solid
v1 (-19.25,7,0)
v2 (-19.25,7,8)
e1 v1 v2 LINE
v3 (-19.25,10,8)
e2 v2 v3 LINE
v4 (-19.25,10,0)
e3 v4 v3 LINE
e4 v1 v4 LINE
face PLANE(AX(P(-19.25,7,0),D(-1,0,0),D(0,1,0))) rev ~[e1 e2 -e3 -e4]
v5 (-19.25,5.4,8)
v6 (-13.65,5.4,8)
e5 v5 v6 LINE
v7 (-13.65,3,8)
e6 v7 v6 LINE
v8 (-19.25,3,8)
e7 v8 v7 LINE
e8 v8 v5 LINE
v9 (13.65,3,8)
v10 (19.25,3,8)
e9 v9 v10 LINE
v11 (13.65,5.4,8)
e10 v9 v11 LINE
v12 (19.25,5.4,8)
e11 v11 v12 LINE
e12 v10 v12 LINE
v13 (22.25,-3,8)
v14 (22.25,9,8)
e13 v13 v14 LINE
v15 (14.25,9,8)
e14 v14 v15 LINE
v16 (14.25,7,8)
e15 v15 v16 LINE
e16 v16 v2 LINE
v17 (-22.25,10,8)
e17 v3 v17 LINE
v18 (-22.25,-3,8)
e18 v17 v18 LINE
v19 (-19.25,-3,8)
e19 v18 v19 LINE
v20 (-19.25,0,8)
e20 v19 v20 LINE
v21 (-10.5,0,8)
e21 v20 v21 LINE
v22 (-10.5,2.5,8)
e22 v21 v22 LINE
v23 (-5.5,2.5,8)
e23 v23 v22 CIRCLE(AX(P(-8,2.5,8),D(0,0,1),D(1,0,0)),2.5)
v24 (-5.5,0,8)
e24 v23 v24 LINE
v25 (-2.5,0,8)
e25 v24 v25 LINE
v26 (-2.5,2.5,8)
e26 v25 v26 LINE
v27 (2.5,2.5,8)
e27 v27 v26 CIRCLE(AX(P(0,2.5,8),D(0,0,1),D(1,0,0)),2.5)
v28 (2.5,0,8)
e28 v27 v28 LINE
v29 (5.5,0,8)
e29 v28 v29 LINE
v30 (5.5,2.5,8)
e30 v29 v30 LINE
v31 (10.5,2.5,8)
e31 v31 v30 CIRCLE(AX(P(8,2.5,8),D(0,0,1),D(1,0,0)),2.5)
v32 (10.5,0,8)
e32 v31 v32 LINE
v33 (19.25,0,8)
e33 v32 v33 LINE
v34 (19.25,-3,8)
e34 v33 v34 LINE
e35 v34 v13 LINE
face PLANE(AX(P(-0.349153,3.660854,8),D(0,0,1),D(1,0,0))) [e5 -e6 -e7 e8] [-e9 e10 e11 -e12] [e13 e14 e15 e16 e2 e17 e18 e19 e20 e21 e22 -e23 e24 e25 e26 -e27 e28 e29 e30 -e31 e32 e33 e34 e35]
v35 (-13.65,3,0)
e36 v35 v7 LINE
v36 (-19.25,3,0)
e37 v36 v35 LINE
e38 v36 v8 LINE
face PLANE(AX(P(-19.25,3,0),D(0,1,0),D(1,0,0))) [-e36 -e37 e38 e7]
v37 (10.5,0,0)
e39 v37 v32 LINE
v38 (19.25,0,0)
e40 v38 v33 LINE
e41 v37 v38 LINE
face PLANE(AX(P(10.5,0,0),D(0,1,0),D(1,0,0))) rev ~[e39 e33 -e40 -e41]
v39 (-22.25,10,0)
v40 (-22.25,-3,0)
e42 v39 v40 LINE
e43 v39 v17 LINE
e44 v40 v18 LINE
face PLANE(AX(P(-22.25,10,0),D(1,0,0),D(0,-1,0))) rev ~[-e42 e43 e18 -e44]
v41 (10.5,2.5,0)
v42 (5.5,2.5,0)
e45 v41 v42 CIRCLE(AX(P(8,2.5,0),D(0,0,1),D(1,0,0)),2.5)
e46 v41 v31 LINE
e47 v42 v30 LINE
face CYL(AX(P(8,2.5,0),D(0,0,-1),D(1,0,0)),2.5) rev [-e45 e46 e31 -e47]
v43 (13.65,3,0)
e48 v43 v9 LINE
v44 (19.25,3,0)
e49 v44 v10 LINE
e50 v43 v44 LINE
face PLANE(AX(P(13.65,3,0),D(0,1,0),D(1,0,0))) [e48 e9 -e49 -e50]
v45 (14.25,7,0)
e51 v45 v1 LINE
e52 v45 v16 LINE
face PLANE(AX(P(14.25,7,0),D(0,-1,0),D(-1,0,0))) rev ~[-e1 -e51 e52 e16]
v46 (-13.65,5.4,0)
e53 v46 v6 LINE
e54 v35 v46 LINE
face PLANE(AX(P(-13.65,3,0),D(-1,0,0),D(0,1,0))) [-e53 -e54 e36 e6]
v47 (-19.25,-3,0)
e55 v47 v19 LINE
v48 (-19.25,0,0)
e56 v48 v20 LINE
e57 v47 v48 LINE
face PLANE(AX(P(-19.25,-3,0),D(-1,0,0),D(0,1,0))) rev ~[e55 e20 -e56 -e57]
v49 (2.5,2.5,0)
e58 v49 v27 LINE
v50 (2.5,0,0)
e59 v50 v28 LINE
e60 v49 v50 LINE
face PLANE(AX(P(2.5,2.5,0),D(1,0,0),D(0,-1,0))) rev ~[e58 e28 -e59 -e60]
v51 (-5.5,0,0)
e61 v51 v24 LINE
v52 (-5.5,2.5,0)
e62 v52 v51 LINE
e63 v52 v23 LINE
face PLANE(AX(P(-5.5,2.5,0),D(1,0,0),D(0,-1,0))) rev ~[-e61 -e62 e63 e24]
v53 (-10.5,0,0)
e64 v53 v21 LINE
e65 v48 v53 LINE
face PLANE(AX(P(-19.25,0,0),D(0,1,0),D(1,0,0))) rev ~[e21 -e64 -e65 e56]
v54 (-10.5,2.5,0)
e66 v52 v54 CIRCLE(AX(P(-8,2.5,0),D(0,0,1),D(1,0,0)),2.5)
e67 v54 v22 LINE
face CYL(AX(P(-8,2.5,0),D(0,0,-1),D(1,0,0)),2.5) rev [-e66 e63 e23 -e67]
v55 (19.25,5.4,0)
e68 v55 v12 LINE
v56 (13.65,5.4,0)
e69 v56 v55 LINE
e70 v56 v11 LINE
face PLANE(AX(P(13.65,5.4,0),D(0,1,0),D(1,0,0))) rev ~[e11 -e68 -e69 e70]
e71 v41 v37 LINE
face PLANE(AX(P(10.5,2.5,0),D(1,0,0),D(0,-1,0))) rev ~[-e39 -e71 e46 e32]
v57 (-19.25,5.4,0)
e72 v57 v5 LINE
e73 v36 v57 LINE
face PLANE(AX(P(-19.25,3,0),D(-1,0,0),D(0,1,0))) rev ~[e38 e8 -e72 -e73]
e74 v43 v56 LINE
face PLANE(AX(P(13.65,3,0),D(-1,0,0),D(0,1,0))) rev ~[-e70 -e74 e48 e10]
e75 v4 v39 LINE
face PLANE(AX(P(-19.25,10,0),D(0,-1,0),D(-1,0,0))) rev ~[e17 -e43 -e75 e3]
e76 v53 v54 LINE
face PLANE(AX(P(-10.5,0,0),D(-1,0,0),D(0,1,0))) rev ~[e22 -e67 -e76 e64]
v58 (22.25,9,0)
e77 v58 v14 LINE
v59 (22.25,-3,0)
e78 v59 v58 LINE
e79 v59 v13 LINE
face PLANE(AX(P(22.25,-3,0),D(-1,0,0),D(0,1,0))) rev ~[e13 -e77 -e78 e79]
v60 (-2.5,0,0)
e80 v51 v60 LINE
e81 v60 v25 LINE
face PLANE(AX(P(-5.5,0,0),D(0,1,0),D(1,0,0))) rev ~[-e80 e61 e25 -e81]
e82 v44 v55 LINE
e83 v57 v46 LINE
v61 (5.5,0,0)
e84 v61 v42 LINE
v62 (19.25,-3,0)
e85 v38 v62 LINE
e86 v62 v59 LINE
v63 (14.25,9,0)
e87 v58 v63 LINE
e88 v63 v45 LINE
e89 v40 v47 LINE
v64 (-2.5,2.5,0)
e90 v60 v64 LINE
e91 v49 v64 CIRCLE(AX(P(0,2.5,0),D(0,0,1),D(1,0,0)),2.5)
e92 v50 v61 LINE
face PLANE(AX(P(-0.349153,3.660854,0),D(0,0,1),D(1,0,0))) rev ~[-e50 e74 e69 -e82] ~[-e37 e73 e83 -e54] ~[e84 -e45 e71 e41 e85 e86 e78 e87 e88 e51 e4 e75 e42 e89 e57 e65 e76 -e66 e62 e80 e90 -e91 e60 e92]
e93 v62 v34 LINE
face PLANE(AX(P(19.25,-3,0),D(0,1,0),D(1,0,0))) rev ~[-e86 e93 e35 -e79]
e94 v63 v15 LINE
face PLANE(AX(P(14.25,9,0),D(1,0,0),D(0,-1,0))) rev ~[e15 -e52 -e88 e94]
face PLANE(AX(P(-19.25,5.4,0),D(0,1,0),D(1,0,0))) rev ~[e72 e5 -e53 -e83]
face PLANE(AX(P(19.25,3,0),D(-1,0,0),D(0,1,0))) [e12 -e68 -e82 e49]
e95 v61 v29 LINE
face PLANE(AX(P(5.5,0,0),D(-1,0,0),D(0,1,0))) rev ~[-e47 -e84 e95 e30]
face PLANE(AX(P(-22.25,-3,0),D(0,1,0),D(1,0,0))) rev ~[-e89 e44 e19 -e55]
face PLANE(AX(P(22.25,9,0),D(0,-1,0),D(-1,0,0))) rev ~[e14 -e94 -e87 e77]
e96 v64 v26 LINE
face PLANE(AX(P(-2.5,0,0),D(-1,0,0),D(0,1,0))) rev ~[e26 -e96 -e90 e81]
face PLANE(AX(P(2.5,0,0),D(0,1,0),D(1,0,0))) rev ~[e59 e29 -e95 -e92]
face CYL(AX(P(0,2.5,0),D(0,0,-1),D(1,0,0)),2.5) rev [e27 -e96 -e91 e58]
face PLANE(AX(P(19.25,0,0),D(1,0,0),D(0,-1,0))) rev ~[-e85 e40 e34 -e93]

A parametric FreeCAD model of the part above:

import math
import FreeCAD as App
import Part
import Sketcher

V = App.Vector


def add_polygon(sketch, points):
    """Adds a closed chain of lines whose ends are joined by coincident constraints."""
    first, n = sketch.GeometryCount, len(points)
    for a, b in zip(points, points[1:] + points[:1]):
        sketch.addGeometry(Part.LineSegment(App.Vector(*a, 0), App.Vector(*b, 0)), False)
    for i in range(n):
        sketch.addConstraint(Sketcher.Constraint("Coincident", first + i, 2, first + (i + 1) % n, 1))

doc = App.newDocument("Part")
body = doc.addObject("PartDesign::Body", "Body")

# Sketch on XY plane
sketch1 = body.newObject("Sketcher::SketchObject", "Sketch")
sketch1.AttachmentSupport = (doc.getObject("XY_Plane"), [""])
sketch1.MapMode = "FlatFace"
sketch1.addGeometry(Part.LineSegment(V(-22.2, -3, 0), V(-19.2, -3, 0)), False)  # 0
sketch1.addGeometry(Part.LineSegment(V(-19.2, -3, 0), V(-19.2, 0, 0)), False)  # 1
sketch1.addGeometry(Part.LineSegment(V(-19.2, 0, 0), V(-10.5, 0, 0)), False)  # 2
sketch1.addGeometry(Part.LineSegment(V(-10.5, 0, 0), V(-10.5, 2.5, 0)), False)  # 3
sketch1.addGeometry(Part.ArcOfCircle(Part.Circle(V(-8, 2.5, 0), V(0, 0, 1), 2.5), math.radians(0), math.radians(180)), False)  # 4
sketch1.addGeometry(Part.LineSegment(V(-5.5, 2.5, 0), V(-5.5, 0, 0)), False)  # 5
sketch1.addGeometry(Part.LineSegment(V(-5.5, 0, 0), V(-2.5, 0, 0)), False)  # 6
sketch1.addGeometry(Part.LineSegment(V(-2.5, 0, 0), V(-2.5, 2.5, 0)), False)  # 7
sketch1.addGeometry(Part.ArcOfCircle(Part.Circle(V(0, 2.5, 0), V(0, 0, 1), 2.5), math.radians(0), math.radians(180)), False)  # 8
sketch1.addGeometry(Part.LineSegment(V(2.5, 2.5, 0), V(2.5, 0, 0)), False)  # 9
sketch1.addGeometry(Part.LineSegment(V(2.5, 0, 0), V(5.5, 0, 0)), False)  # 10
sketch1.addGeometry(Part.LineSegment(V(5.5, 0, 0), V(5.5, 2.5, 0)), False)  # 11
sketch1.addGeometry(Part.ArcOfCircle(Part.Circle(V(8, 2.5, 0), V(0, 0, 1), 2.5), math.radians(0), math.radians(180)), False)  # 12
sketch1.addGeometry(Part.LineSegment(V(10.5, 2.5, 0), V(10.5, 0, 0)), False)  # 13
sketch1.addGeometry(Part.LineSegment(V(10.5, 0, 0), V(19.2, 0, 0)), False)  # 14
sketch1.addGeometry(Part.LineSegment(V(19.2, 0, 0), V(19.2, -3, 0)), False)  # 15
sketch1.addGeometry(Part.LineSegment(V(19.2, -3, 0), V(22.2, -3, 0)), False)  # 16
sketch1.addGeometry(Part.LineSegment(V(22.2, -3, 0), V(22.2, 9, 0)), False)  # 17
sketch1.addGeometry(Part.LineSegment(V(22.2, 9, 0), V(14.2, 9, 0)), False)  # 18
sketch1.addGeometry(Part.LineSegment(V(14.2, 9, 0), V(14.2, 7, 0)), False)  # 19
sketch1.addGeometry(Part.LineSegment(V(14.2, 7, 0), V(-19.2, 7, 0)), False)  # 20
sketch1.addGeometry(Part.LineSegment(V(-19.2, 7, 0), V(-19.2, 10, 0)), False)  # 21
sketch1.addGeometry(Part.LineSegment(V(-19.2, 10, 0), V(-22.2, 10, 0)), False)  # 22
sketch1.addGeometry(Part.LineSegment(V(-22.2, 10, 0), V(-22.2, -3, 0)), False)  # 23
add_polygon(sketch1, [(-13.7, 3), (-19.2, 3), (-19.2, 5.4), (-13.7, 5.4)])  # lines 24-27
add_polygon(sketch1, [(19.2, 3), (13.7, 3), (13.7, 5.4), (19.2, 5.4)])  # lines 28-31
sketch1.addConstraint(Sketcher.Constraint("Coincident", 0, 2, 1, 1))
sketch1.addConstraint(Sketcher.Constraint("Coincident", 1, 2, 2, 1))
sketch1.addConstraint(Sketcher.Constraint("Coincident", 2, 2, 3, 1))
sketch1.addConstraint(Sketcher.Constraint("Tangent", 3, 2, 4, 2))
sketch1.addConstraint(Sketcher.Constraint("Tangent", 4, 1, 5, 1))
sketch1.addConstraint(Sketcher.Constraint("Coincident", 5, 2, 6, 1))
sketch1.addConstraint(Sketcher.Constraint("Coincident", 6, 2, 7, 1))
sketch1.addConstraint(Sketcher.Constraint("Tangent", 7, 2, 8, 2))
sketch1.addConstraint(Sketcher.Constraint("Tangent", 8, 1, 9, 1))
sketch1.addConstraint(Sketcher.Constraint("Coincident", 9, 2, 10, 1))
sketch1.addConstraint(Sketcher.Constraint("Coincident", 10, 2, 11, 1))
sketch1.addConstraint(Sketcher.Constraint("Tangent", 11, 2, 12, 2))
sketch1.addConstraint(Sketcher.Constraint("Tangent", 12, 1, 13, 1))
sketch1.addConstraint(Sketcher.Constraint("Coincident", 13, 2, 14, 1))
sketch1.addConstraint(Sketcher.Constraint("Coincident", 14, 2, 15, 1))
sketch1.addConstraint(Sketcher.Constraint("Coincident", 15, 2, 16, 1))
sketch1.addConstraint(Sketcher.Constraint("Coincident", 16, 2, 17, 1))
sketch1.addConstraint(Sketcher.Constraint("Coincident", 17, 2, 18, 1))
sketch1.addConstraint(Sketcher.Constraint("Coincident", 18, 2, 19, 1))
sketch1.addConstraint(Sketcher.Constraint("Coincident", 19, 2, 20, 1))
sketch1.addConstraint(Sketcher.Constraint("Coincident", 20, 2, 21, 1))
sketch1.addConstraint(Sketcher.Constraint("Coincident", 21, 2, 22, 1))
sketch1.addConstraint(Sketcher.Constraint("Coincident", 22, 2, 23, 1))
sketch1.addConstraint(Sketcher.Constraint("Coincident", 23, 2, 0, 1))
sketch1.addConstraint(Sketcher.Constraint("Horizontal", 0))
sketch1.addConstraint(Sketcher.Constraint("Vertical", 1))
sketch1.addConstraint(Sketcher.Constraint("Horizontal", 2))
sketch1.addConstraint(Sketcher.Constraint("Vertical", 3))
sketch1.addConstraint(Sketcher.Constraint("Vertical", 5))
sketch1.addConstraint(Sketcher.Constraint("Horizontal", 6))
sketch1.addConstraint(Sketcher.Constraint("Vertical", 7))
sketch1.addConstraint(Sketcher.Constraint("Vertical", 9))
sketch1.addConstraint(Sketcher.Constraint("Horizontal", 10))
sketch1.addConstraint(Sketcher.Constraint("Vertical", 11))
sketch1.addConstraint(Sketcher.Constraint("Vertical", 13))
sketch1.addConstraint(Sketcher.Constraint("Horizontal", 14))
sketch1.addConstraint(Sketcher.Constraint("Vertical", 15))
sketch1.addConstraint(Sketcher.Constraint("Horizontal", 16))
sketch1.addConstraint(Sketcher.Constraint("Vertical", 17))
sketch1.addConstraint(Sketcher.Constraint("Horizontal", 18))
sketch1.addConstraint(Sketcher.Constraint("Vertical", 19))
sketch1.addConstraint(Sketcher.Constraint("Horizontal", 20))
sketch1.addConstraint(Sketcher.Constraint("Vertical", 21))
sketch1.addConstraint(Sketcher.Constraint("Horizontal", 22))
sketch1.addConstraint(Sketcher.Constraint("Vertical", 23))
sketch1.addConstraint(Sketcher.Constraint("Horizontal", 24))
sketch1.addConstraint(Sketcher.Constraint("Vertical", 25))
sketch1.addConstraint(Sketcher.Constraint("Horizontal", 26))
sketch1.addConstraint(Sketcher.Constraint("Vertical", 27))
sketch1.addConstraint(Sketcher.Constraint("Horizontal", 28))
sketch1.addConstraint(Sketcher.Constraint("Vertical", 29))
sketch1.addConstraint(Sketcher.Constraint("Horizontal", 30))
sketch1.addConstraint(Sketcher.Constraint("Vertical", 31))
sketch1.addConstraint(Sketcher.Constraint("Equal", 4, 8))
sketch1.addConstraint(Sketcher.Constraint("Equal", 8, 12))
sketch1.addConstraint(Sketcher.Constraint("Symmetric", 6, 2, 9, 2, -1, 1))
sketch1.addConstraint(Sketcher.Constraint("Symmetric", 2, 2, 13, 2, -1, 1))
sketch1.addConstraint(Sketcher.Constraint("Symmetric", 15, 2, 24, 2, -1, 1))
sketch1.addConstraint(Sketcher.Constraint("Symmetric", 0, 2, 31, 2, -1, 1))
sketch1.addConstraint(Sketcher.Constraint("Symmetric", 1, 2, 14, 2, -2))
sketch1.addConstraint(Sketcher.Constraint("Symmetric", 16, 2, 23, 2, -2))
sketch1.addConstraint(Sketcher.Constraint("Symmetric", 26, 2, 29, 2, -2))
sketch1.addConstraint(Sketcher.Constraint("PointOnObject", 5, 2, -1))
sketch1.addConstraint(Sketcher.Constraint("Horizontal", 4, 3, 8, 3))
sketch1.addConstraint(Sketcher.Constraint("Horizontal", 8, 3, 12, 3))
sketch1.addConstraint(Sketcher.Constraint("Vertical", 1, 2, 20, 2))
sketch1.addConstraint(Sketcher.Constraint("Equal", 0, 6))
sketch1.addConstraint(Sketcher.Constraint("Equal", 22, 1))
sketch1.addConstraint(Sketcher.Constraint("Equal", 15, 21))
sketch1.addConstraint(Sketcher.Constraint("Radius", 4, 2.5))
sketch1.addConstraint(Sketcher.Constraint("DistanceX", 0, 1, 0, 2, 3.0))
sketch1.addConstraint(Sketcher.Constraint("DistanceX", 18, 2, 18, 1, 8.0))
sketch1.addConstraint(Sketcher.Constraint("DistanceY", 17, 1, 17, 2, 12.0))
sketch1.addConstraint(Sketcher.Constraint("DistanceY", 19, 2, 19, 1, 2.0))
sketch1.addConstraint(Sketcher.Constraint("DistanceX", 20, 2, 20, 1, 33.5))
sketch1.addConstraint(Sketcher.Constraint("DistanceX", 24, 2, 24, 1, 5.6))
sketch1.addConstraint(Sketcher.Constraint("DistanceY", 3, 1, 3, 2, 2.5))
sketch1.addConstraint(Sketcher.Constraint("DistanceY", 25, 1, 25, 2, 2.4))
pad1 = body.newObject("PartDesign::Pad", "Pad")
pad1.Profile = sketch1
pad1.Length = 8

doc.recompute()
